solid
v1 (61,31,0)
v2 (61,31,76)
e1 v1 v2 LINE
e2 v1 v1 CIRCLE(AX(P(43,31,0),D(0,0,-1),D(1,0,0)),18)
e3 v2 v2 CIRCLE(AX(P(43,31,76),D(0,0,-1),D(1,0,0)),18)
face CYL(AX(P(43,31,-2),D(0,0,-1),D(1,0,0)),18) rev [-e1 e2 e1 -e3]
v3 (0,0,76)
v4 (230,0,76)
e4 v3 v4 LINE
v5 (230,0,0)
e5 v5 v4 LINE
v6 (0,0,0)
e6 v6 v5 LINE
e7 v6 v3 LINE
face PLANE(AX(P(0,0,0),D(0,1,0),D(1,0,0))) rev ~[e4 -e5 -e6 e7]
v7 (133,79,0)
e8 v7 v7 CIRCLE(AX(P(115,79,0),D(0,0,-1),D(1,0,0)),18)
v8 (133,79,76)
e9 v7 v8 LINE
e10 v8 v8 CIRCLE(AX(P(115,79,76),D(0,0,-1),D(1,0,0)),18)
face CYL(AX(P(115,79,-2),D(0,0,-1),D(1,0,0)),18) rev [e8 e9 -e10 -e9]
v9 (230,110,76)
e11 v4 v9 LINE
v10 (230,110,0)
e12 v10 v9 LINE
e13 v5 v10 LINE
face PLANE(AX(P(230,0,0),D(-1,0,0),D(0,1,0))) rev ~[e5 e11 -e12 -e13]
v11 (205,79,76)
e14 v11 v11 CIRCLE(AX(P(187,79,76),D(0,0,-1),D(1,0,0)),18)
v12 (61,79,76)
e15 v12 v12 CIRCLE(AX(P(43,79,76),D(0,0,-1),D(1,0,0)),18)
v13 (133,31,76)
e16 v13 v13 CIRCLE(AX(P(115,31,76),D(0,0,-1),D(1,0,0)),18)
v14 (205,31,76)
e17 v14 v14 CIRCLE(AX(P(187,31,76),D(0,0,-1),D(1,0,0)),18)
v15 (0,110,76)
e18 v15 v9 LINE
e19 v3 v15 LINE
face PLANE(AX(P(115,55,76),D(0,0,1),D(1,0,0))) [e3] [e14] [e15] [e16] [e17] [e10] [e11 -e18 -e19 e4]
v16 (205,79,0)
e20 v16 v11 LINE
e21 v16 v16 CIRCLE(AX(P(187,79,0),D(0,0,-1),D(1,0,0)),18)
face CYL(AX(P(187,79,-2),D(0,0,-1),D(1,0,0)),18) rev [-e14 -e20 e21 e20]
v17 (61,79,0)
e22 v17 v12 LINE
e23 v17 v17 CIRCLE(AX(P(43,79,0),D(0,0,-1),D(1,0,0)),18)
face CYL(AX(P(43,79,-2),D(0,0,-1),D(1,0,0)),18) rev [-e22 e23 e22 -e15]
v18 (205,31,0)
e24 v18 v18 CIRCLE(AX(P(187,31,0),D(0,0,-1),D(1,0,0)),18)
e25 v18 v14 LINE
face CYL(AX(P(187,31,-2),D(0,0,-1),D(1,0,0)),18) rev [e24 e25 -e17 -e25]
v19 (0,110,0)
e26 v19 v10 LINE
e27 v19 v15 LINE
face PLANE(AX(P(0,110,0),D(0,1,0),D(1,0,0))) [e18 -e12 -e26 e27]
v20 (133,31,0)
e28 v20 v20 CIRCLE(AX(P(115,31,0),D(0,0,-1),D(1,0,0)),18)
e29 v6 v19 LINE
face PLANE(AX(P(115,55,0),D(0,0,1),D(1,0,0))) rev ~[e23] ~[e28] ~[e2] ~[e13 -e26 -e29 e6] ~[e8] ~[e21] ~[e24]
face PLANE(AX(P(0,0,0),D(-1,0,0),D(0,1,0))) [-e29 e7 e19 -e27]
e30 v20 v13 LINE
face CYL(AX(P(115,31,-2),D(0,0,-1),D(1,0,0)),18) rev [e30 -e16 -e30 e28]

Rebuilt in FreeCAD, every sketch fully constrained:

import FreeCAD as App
import Part
import Sketcher

doc = App.newDocument("Part")
params = doc.addObject("Spreadsheet::Sheet", "Params")
for row, (alias, value) in enumerate([
    ("sketch1_diameter", "36 mm"),
    ("pad1_length", "80 mm"),
    ("sketch2_diameter", "36 mm"),
    ("pad2_length", "80 mm"),
    ("sketch3_diameter", "36 mm"),
    ("pad3_length", "80 mm"),
    ("sketch4_diameter", "36 mm"),
    ("pad4_length", "80 mm"),
    ("sketch5_diameter", "36 mm"),
    ("pad5_length", "80 mm"),
    ("sketch6_diameter", "36 mm"),
    ("pad6_length", "80 mm"),
    ("sketch7_width", "230 mm"),
    ("sketch7_height", "110 mm"),
    ("pad7_length", "76 mm"),
], start=1):
    params.set(f"A{row}", alias)
    params.set(f"B{row}", "=" + value)
    params.setAlias(f"B{row}", alias)

body = doc.addObject("PartDesign::Body", "Body")

sketch1 = doc.addObject("Sketcher::SketchObject", "Sketch")
body.addObject(sketch1)
sketch1.AttachmentSupport = (doc.XY_Plane, [""])
sketch1.MapMode = "FlatFace"
sketch1.AttachmentOffset = App.Placement(App.Vector(0, 0, -2), App.Rotation())
sketch1.addGeometry(Part.Circle(App.Vector(43, 79, 0), App.Vector(0, 0, 1), 18), False)
sketch1.addConstraint(Sketcher.Constraint("Diameter", 0, 36.0))
sketch1.addConstraint(Sketcher.Constraint("DistanceX", -1, 1, 0, 3, 43.0))
sketch1.addConstraint(Sketcher.Constraint("DistanceY", -1, 1, 0, 3, 79.0))
sketch1.setExpression("Constraints[0]", "Params.sketch1_diameter")
pad1 = doc.addObject("PartDesign::Pad", "Pad")
body.addObject(pad1)
pad1.Profile = sketch1
pad1.setExpression("Length", "Params.pad1_length")
body2 = doc.addObject("PartDesign::Body", "Body001")

sketch2 = doc.addObject("Sketcher::SketchObject", "Sketch001")
body2.addObject(sketch2)
sketch2.AttachmentSupport = (doc.getObject("XY_Plane001"), [""])
sketch2.MapMode = "FlatFace"
sketch2.AttachmentOffset = App.Placement(App.Vector(0, 0, -2), App.Rotation())
sketch2.addGeometry(Part.Circle(App.Vector(115, 31, 0), App.Vector(0, 0, 1), 18), False)
sketch2.addConstraint(Sketcher.Constraint("Diameter", 0, 36.0))
sketch2.addConstraint(Sketcher.Constraint("DistanceX", -1, 1, 0, 3, 115.0))
sketch2.addConstraint(Sketcher.Constraint("DistanceY", -1, 1, 0, 3, 31.0))
sketch2.setExpression("Constraints[0]", "Params.sketch2_diameter")
pad2 = doc.addObject("PartDesign::Pad", "Pad001")
body2.addObject(pad2)
pad2.Profile = sketch2
pad2.setExpression("Length", "Params.pad2_length")
body3 = doc.addObject("PartDesign::Body", "Body002")

sketch3 = doc.addObject("Sketcher::SketchObject", "Sketch002")
body3.addObject(sketch3)
sketch3.AttachmentSupport = (doc.getObject("XY_Plane002"), [""])
sketch3.MapMode = "FlatFace"
sketch3.AttachmentOffset = App.Placement(App.Vector(0, 0, -2), App.Rotation())
sketch3.addGeometry(Part.Circle(App.Vector(187, 31, 0), App.Vector(0, 0, 1), 18), False)
sketch3.addConstraint(Sketcher.Constraint("Diameter", 0, 36.0))
sketch3.addConstraint(Sketcher.Constraint("DistanceX", -1, 1, 0, 3, 187.0))
sketch3.addConstraint(Sketcher.Constraint("DistanceY", -1, 1, 0, 3, 31.0))
sketch3.setExpression("Constraints[0]", "Params.sketch3_diameter")
pad3 = doc.addObject("PartDesign::Pad", "Pad002")
body3.addObject(pad3)
pad3.Profile = sketch3
pad3.setExpression("Length", "Params.pad3_length")
body4 = doc.addObject("PartDesign::Body", "Body003")

sketch4 = doc.addObject("Sketcher::SketchObject", "Sketch003")
body4.addObject(sketch4)
sketch4.AttachmentSupport = (doc.getObject("XY_Plane003"), [""])
sketch4.MapMode = "FlatFace"
sketch4.AttachmentOffset = App.Placement(App.Vector(0, 0, -2), App.Rotation())
sketch4.addGeometry(Part.Circle(App.Vector(115, 79, 0), App.Vector(0, 0, 1), 18), False)
sketch4.addConstraint(Sketcher.Constraint("Diameter", 0, 36.0))
sketch4.addConstraint(Sketcher.Constraint("DistanceX", -1, 1, 0, 3, 115.0))
sketch4.addConstraint(Sketcher.Constraint("DistanceY", -1, 1, 0, 3, 79.0))
sketch4.setExpression("Constraints[0]", "Params.sketch4_diameter")
pad4 = doc.addObject("PartDesign::Pad", "Pad003")
body4.addObject(pad4)
pad4.Profile = sketch4
pad4.setExpression("Length", "Params.pad4_length")
body5 = doc.addObject("PartDesign::Body", "Body004")

sketch5 = doc.addObject("Sketcher::SketchObject", "Sketch004")
body5.addObject(sketch5)
sketch5.AttachmentSupport = (doc.getObject("XY_Plane004"), [""])
sketch5.MapMode = "FlatFace"
sketch5.AttachmentOffset = App.Placement(App.Vector(0, 0, -2), App.Rotation())
sketch5.addGeometry(Part.Circle(App.Vector(187, 79, 0), App.Vector(0, 0, 1), 18), False)
sketch5.addConstraint(Sketcher.Constraint("Diameter", 0, 36.0))
sketch5.addConstraint(Sketcher.Constraint("DistanceX", -1, 1, 0, 3, 187.0))
sketch5.addConstraint(Sketcher.Constraint("DistanceY", -1, 1, 0, 3, 79.0))
sketch5.setExpression("Constraints[0]", "Params.sketch5_diameter")
pad5 = doc.addObject("PartDesign::Pad", "Pad004")
body5.addObject(pad5)
pad5.Profile = sketch5
pad5.setExpression("Length", "Params.pad5_length")
body6 = doc.addObject("PartDesign::Body", "Body005")
body6.AllowCompound = True

sketch6 = doc.addObject("Sketcher::SketchObject", "Sketch005")
body6.addObject(sketch6)
sketch6.AttachmentSupport = (doc.getObject("XY_Plane005"), [""])
sketch6.MapMode = "FlatFace"
sketch6.AttachmentOffset = App.Placement(App.Vector(0, 0, -2), App.Rotation())
sketch6.addGeometry(Part.Circle(App.Vector(43, 31, 0), App.Vector(0, 0, 1), 18), False)
sketch6.addConstraint(Sketcher.Constraint("Diameter", 0, 36.0))
sketch6.addConstraint(Sketcher.Constraint("DistanceX", -1, 1, 0, 3, 43.0))
sketch6.addConstraint(Sketcher.Constraint("DistanceY", -1, 1, 0, 3, 31.0))
sketch6.setExpression("Constraints[0]", "Params.sketch6_diameter")
pad6 = doc.addObject("PartDesign::Pad", "Pad005")
body6.addObject(pad6)
pad6.Profile = sketch6
pad6.setExpression("Length", "Params.pad6_length")
doc.recompute()

boolean = doc.addObject("PartDesign::Boolean", "Boolean")
body6.addObject(boolean)
boolean.Type = "Fuse"
boolean.addObjects([body])
doc.recompute()

boolean2 = doc.addObject("PartDesign::Boolean", "Boolean001")
body6.addObject(boolean2)
boolean2.Type = "Fuse"
boolean2.addObjects([body2])
doc.recompute()

boolean3 = doc.addObject("PartDesign::Boolean", "Boolean002")
body6.addObject(boolean3)
boolean3.Type = "Fuse"
boolean3.addObjects([body3])
doc.recompute()

boolean4 = doc.addObject("PartDesign::Boolean", "Boolean003")
body6.addObject(boolean4)
boolean4.Type = "Fuse"
boolean4.addObjects([body4])
doc.recompute()

boolean5 = doc.addObject("PartDesign::Boolean", "Boolean004")
body6.addObject(boolean5)
boolean5.Type = "Fuse"
boolean5.addObjects([body5])
body7 = doc.addObject("PartDesign::Body", "Body006")

sketch7 = doc.addObject("Sketcher::SketchObject", "Sketch006")
body7.addObject(sketch7)
sketch7.AttachmentSupport = (doc.getObject("XY_Plane006"), [""])
sketch7.MapMode = "FlatFace"
sketch7.addGeometry(Part.LineSegment(App.Vector(0, 110, 0), App.Vector(0, 0, 0)), False)
sketch7.addGeometry(Part.LineSegment(App.Vector(0, 0, 0), App.Vector(230, 0, 0)), False)
sketch7.addGeometry(Part.LineSegment(App.Vector(230, 0, 0), App.Vector(230, 110, 0)), False)
sketch7.addGeometry(Part.LineSegment(App.Vector(230, 110, 0), App.Vector(0, 110, 0)), False)
sketch7.addConstraint(Sketcher.Constraint("Coincident", 0, 2, 1, 1))
sketch7.addConstraint(Sketcher.Constraint("Coincident", 1, 2, 2, 1))
sketch7.addConstraint(Sketcher.Constraint("Coincident", 2, 2, 3, 1))
sketch7.addConstraint(Sketcher.Constraint("Coincident", 3, 2, 0, 1))
sketch7.addConstraint(Sketcher.Constraint("Vertical", 0))
sketch7.addConstraint(Sketcher.Constraint("Horizontal", 1))
sketch7.addConstraint(Sketcher.Constraint("Vertical", 2))
sketch7.addConstraint(Sketcher.Constraint("Horizontal", 3))
sketch7.addConstraint(Sketcher.Constraint("Coincident", 0, 2, -1, 1))
sketch7.addConstraint(Sketcher.Constraint("DistanceX", 1, 1, 1, 2, 230.0))
sketch7.addConstraint(Sketcher.Constraint("DistanceY", 0, 2, 0, 1, 110.0))
sketch7.setExpression("Constraints[9]", "Params.sketch7_width")
sketch7.setExpression("Constraints[10]", "Params.sketch7_height")
pad7 = doc.addObject("PartDesign::Pad", "Pad006")
body7.addObject(pad7)
pad7.Profile = sketch7
pad7.setExpression("Length", "Params.pad7_length")
doc.recompute()

boolean6 = doc.addObject("PartDesign::Boolean", "Boolean005")
body7.addObject(boolean6)
boolean6.Type = "Cut"
boolean6.addObjects([body6])

doc.recompute()
